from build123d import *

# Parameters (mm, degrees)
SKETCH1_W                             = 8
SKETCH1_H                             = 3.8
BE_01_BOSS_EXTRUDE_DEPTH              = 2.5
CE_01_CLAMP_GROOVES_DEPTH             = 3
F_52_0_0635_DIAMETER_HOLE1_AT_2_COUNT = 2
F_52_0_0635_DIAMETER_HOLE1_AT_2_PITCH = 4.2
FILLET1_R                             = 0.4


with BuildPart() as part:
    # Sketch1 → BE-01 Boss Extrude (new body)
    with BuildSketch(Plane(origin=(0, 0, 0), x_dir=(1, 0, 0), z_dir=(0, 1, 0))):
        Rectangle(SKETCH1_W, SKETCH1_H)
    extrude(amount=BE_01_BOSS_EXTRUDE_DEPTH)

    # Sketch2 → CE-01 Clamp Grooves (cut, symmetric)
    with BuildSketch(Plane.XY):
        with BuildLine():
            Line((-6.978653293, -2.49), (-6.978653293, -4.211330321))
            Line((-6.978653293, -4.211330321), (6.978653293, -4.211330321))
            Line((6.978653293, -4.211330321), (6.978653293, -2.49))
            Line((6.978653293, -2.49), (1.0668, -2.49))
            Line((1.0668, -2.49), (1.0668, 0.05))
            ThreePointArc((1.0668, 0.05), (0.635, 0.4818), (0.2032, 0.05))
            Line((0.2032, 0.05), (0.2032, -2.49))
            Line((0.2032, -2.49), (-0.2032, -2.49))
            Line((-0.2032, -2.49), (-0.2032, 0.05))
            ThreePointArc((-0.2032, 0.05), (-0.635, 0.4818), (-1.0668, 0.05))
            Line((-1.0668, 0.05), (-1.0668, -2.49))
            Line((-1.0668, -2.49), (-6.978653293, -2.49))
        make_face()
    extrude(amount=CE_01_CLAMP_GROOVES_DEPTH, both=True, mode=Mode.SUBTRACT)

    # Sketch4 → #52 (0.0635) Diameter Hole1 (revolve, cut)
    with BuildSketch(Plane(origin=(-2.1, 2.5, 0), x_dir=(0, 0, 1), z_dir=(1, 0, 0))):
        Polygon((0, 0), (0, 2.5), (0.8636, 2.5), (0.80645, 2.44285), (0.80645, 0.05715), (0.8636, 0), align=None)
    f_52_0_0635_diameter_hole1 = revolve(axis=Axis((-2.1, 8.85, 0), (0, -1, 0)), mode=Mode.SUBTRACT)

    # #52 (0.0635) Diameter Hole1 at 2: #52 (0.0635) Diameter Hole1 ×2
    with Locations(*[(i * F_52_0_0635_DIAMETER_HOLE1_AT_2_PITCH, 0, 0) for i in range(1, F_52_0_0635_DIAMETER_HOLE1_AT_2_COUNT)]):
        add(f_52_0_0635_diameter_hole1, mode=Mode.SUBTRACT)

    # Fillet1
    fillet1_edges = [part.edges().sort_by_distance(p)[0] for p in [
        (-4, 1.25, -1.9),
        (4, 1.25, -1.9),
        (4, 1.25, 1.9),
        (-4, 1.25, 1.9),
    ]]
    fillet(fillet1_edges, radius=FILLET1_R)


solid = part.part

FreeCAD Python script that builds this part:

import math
import FreeCAD as App
import Part
import Sketcher
from FreeCAD import Vector


def edges_at(feature, points):
    """Names of the edges that pass closest to the given points."""
    edges = feature.Shape.Edges
    near = lambda p: min(range(len(edges)), key=lambda i: edges[i].distToShape(Part.Vertex(*p))[0])
    return sorted({f"Edge{near(p) + 1}" for p in points})


def add_polygon(sketch, points):
    """Adds a closed chain of lines whose ends are joined by coincident constraints."""
    first, n = sketch.GeometryCount, len(points)
    for a, b in zip(points, points[1:] + points[:1]):
        sketch.addGeometry(Part.LineSegment(App.Vector(*a, 0), App.Vector(*b, 0)), False)
    for i in range(n):
        sketch.addConstraint(Sketcher.Constraint("Coincident", first + i, 2, first + (i + 1) % n, 1))

doc = App.newDocument("Part")
body = doc.addObject("PartDesign::Body", "Body")

# Sketch on XZ plane
sketch1 = doc.addObject("Sketcher::SketchObject", "Sketch")
body.addObject(sketch1)
sketch1.AttachmentSupport = (doc.XZ_Plane, [""])
sketch1.MapMode = "FlatFace"
add_polygon(sketch1, [(-4, -1.9), (-4, 1.9), (4, 1.9), (4, -1.9)])  # lines 0-3
sketch1.addConstraint([
    Sketcher.Constraint("Vertical", 0),
    Sketcher.Constraint("Horizontal", 1),
    Sketcher.Constraint("Vertical", 2),
    Sketcher.Constraint("Horizontal", 3),
    Sketcher.Constraint("Symmetric", 0, 2, 2, 2, -1, 1),
    Sketcher.Constraint("DistanceX", 1, 1, 1, 2, 8.0),
    Sketcher.Constraint("DistanceY", 0, 1, 0, 2, 3.8),
])
pad1 = doc.addObject("PartDesign::Pad", "Pad")
body.addObject(pad1)
pad1.Profile = sketch1
pad1.Length = 2.5
pad1.Reversed = True

# Sketch on XY plane
sketch2 = doc.addObject("Sketcher::SketchObject", "Sketch001")
body.addObject(sketch2)
sketch2.AttachmentSupport = (doc.XY_Plane, [""])
sketch2.MapMode = "FlatFace"
sketch2.addGeometry([
    Part.LineSegment(Vector(-6.978653, -2.49, 0), Vector(-6.978653, -4.21133, 0)),  # 0
    Part.LineSegment(Vector(-6.978653, -4.21133, 0), Vector(6.978653, -4.21133, 0)),  # 1
    Part.LineSegment(Vector(6.978653, -4.21133, 0), Vector(6.978653, -2.49, 0)),  # 2
    Part.LineSegment(Vector(6.978653, -2.49, 0), Vector(1.0668, -2.49, 0)),  # 3
    Part.LineSegment(Vector(1.0668, -2.49, 0), Vector(1.0668, 0.05, 0)),  # 4
    Part.ArcOfCircle(Part.Circle(Vector(0.635, 0.05, 0), Vector(0, 0, 1), 0.4318), math.radians(0), math.radians(180)),  # 5
    Part.LineSegment(Vector(0.2032, 0.05, 0), Vector(0.2032, -2.49, 0)),  # 6
    Part.LineSegment(Vector(0.2032, -2.49, 0), Vector(-0.2032, -2.49, 0)),  # 7
    Part.LineSegment(Vector(-0.2032, -2.49, 0), Vector(-0.2032, 0.05, 0)),  # 8
    Part.ArcOfCircle(Part.Circle(Vector(-0.635, 0.05, 0), Vector(0, 0, 1), 0.4318), math.radians(0), math.radians(180)),  # 9
    Part.LineSegment(Vector(-1.0668, 0.05, 0), Vector(-1.0668, -2.49, 0)),  # 10
    Part.LineSegment(Vector(-1.0668, -2.49, 0), Vector(-6.978653, -2.49, 0)),  # 11
], False)
sketch2.addConstraint([
    Sketcher.Constraint("Coincident", 0, 2, 1, 1),
    Sketcher.Constraint("Coincident", 1, 2, 2, 1),
    Sketcher.Constraint("Coincident", 2, 2, 3, 1),
    Sketcher.Constraint("Coincident", 3, 2, 4, 1),
    Sketcher.Constraint("Tangent", 4, 2, 5, 1),
    Sketcher.Constraint("Tangent", 5, 2, 6, 1),
    Sketcher.Constraint("Coincident", 6, 2, 7, 1),
    Sketcher.Constraint("Coincident", 7, 2, 8, 1),
    Sketcher.Constraint("Tangent", 8, 2, 9, 1),
    Sketcher.Constraint("Tangent", 9, 2, 10, 1),
    Sketcher.Constraint("Coincident", 10, 2, 11, 1),
    Sketcher.Constraint("Coincident", 11, 2, 0, 1),
    Sketcher.Constraint("Vertical", 0),
    Sketcher.Constraint("Horizontal", 1),
    Sketcher.Constraint("Vertical", 2),
    Sketcher.Constraint("Horizontal", 3),
    Sketcher.Constraint("Vertical", 4),
    Sketcher.Constraint("Vertical", 6),
    Sketcher.Constraint("Horizontal", 7),
    Sketcher.Constraint("Vertical", 8),
    Sketcher.Constraint("Vertical", 10),
    Sketcher.Constraint("Horizontal", 11),
    Sketcher.Constraint("Equal", 5, 9),
    Sketcher.Constraint("Symmetric", 5, 3, 9, 3, -2),
    Sketcher.Constraint("Symmetric", 2, 2, 11, 2, -2),
    Sketcher.Constraint("Horizontal", 3, 2, 6, 2),
    Sketcher.Constraint("DistanceY", 4, 1, 4, 2, 2.54),
    Sketcher.Constraint("Radius", 5, 0.4318),
    Sketcher.Constraint("DistanceY", -1, 1, 5, 3, 0.05),
    Sketcher.Constraint("DistanceX", 9, 3, 5, 3, 1.27),
    Sketcher.Constraint("DistanceY", 0, 2, 0, 1, 1.72133),
    Sketcher.Constraint("DistanceX", 1, 1, 1, 2, 13.957307),
])
pocket1 = doc.addObject("PartDesign::Pocket", "Pocket")
body.addObject(pocket1)
pocket1.Profile = sketch2
pocket1.Length = 6
pocket1.Midplane = True

# Sketch on YZ plane
sketch3 = doc.addObject("Sketcher::SketchObject", "Sketch002")
body.addObject(sketch3)
sketch3.AttachmentSupport = (doc.YZ_Plane, [""])
sketch3.MapMode = "FlatFace"
sketch3.AttachmentOffset = App.Placement(Vector(0, 0, -2.1), App.Rotation())
add_polygon(sketch3, [(0, 0), (2.5, 0), (2.5, 0.8636), (2.44285, 0.80645), (0.05715, 0.80645), (0, 0.8636)])  # lines 0-5
sketch3.addConstraint([
    Sketcher.Constraint("Horizontal", 0),
    Sketcher.Constraint("Vertical", 1),
    Sketcher.Constraint("Horizontal", 3),
    Sketcher.Constraint("Vertical", 5),
    Sketcher.Constraint("Coincident", 5, 2, -1, 1),
    Sketcher.Constraint("Perpendicular", 2, 4),
    Sketcher.Constraint("Horizontal", 1, 2, 4, 2),
    Sketcher.Constraint("Equal", 2, 4),
    Sketcher.Constraint("DistanceX", 0, 1, 0, 2, 2.5),
    Sketcher.Constraint("DistanceX", 3, 2, 3, 1, 2.3857),
    Sketcher.Constraint("DistanceY", 1, 1, 1, 2, 0.8636),
])
groove = doc.addObject("PartDesign::Groove", "Groove")
body.addObject(groove)
groove.Profile = sketch3
groove.ReferenceAxis = (sketch3, ["H_Axis"])
groove.Angle = 360
doc.recompute()

linearpattern = doc.addObject("PartDesign::LinearPattern", "LinearPattern")
body.addObject(linearpattern)
linearpattern.Originals = [groove]
linearpattern.Direction = (doc.X_Axis, [""])
linearpattern.Mode = "offset"
linearpattern.Offset = 4.2
linearpattern.Occurrences = 2
body.Tip = linearpattern
doc.recompute()

fillet = doc.addObject("PartDesign::Fillet", "Fillet")
body.addObject(fillet)
fillet.Base = (linearpattern, edges_at(linearpattern, [
    (-4, 1.25, -1.9),
    (4, 1.25, -1.9),
    (4, 1.25, 1.9),
    (-4, 1.25, 1.9),
]))
fillet.Radius = 0.4

doc.recompute()
